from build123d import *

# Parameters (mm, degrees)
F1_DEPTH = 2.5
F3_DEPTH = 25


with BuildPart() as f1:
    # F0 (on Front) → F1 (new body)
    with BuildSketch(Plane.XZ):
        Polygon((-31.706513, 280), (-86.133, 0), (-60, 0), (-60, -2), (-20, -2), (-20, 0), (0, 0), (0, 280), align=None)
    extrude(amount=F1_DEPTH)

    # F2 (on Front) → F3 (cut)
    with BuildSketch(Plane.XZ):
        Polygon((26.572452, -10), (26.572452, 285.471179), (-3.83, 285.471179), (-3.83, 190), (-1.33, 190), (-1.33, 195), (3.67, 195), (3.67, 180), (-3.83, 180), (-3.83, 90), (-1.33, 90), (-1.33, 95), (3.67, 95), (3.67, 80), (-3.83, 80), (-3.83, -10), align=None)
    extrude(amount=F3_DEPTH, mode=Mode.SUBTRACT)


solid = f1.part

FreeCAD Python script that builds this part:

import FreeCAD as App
import Part
import Sketcher
Q = App.Units.Quantity


def add_polygon(sketch, points):
    """Adds a closed chain of lines whose ends are joined by coincident constraints."""
    first, n = sketch.GeometryCount, len(points)
    for a, b in zip(points, points[1:] + points[:1]):
        sketch.addGeometry(Part.LineSegment(App.Vector(*a, 0), App.Vector(*b, 0)), False)
    for i in range(n):
        sketch.addConstraint(Sketcher.Constraint("Coincident", first + i, 2, first + (i + 1) % n, 1))

doc = App.newDocument("Part")
body = doc.addObject("PartDesign::Body", "Body")

# Sketch on XZ plane
sketch1 = doc.addObject("Sketcher::SketchObject", "Sketch")
body.addObject(sketch1)
sketch1.AttachmentSupport = (doc.XZ_Plane, [""])
sketch1.MapMode = "FlatFace"
add_polygon(sketch1, [(-31.7, 280), (-86.1, 0), (-60, 0), (-60, -2), (-20, -2), (-20, 0), (0, 0), (0, 280)])  # lines 0-7
sketch1.addConstraint([
    Sketcher.Constraint("Horizontal", 1),
    Sketcher.Constraint("Vertical", 2),
    Sketcher.Constraint("Horizontal", 3),
    Sketcher.Constraint("Vertical", 4),
    Sketcher.Constraint("Horizontal", 5),
    Sketcher.Constraint("Vertical", 6),
    Sketcher.Constraint("Horizontal", 7),
    Sketcher.Constraint("Coincident", 5, 2, -1, 1),
    Sketcher.Constraint("PointOnObject", 0, 2, -1),
    Sketcher.Constraint("DistanceX", 3, 1, 3, 2, 40.0),
    Sketcher.Constraint("DistanceX", 5, 1, 5, 2, 20.0),
    Sketcher.Constraint("DistanceY", 2, 2, 2, 1, 2.0),
    Sketcher.Constraint("DistanceY", 6, 1, 6, 2, 280.0),
    Sketcher.Constraint("Angle", 0, Q("-101 deg")),
    Sketcher.Constraint("DistanceX", 1, 1, 1, 2, 26.133),
])
pad1 = doc.addObject("PartDesign::Pad", "Pad")
body.addObject(pad1)
pad1.Profile = sketch1
pad1.Length = 2.5

# Sketch on XZ plane
sketch2 = doc.addObject("Sketcher::SketchObject", "Sketch001")
body.addObject(sketch2)
sketch2.AttachmentSupport = (doc.XZ_Plane, [""])
sketch2.MapMode = "FlatFace"
add_polygon(sketch2, [(26.6, -10), (26.6, 285.5), (-3.8, 285.5), (-3.8, 190), (-1.3, 190), (-1.3, 195), (3.7, 195), (3.7, 180), (-3.8, 180), (-3.8, 90), (-1.3, 90), (-1.3, 95), (3.7, 95), (3.7, 80), (-3.8, 80), (-3.8, -10)])  # lines 0-15
sketch2.addConstraint([
    Sketcher.Constraint("Vertical", 0),
    Sketcher.Constraint("Horizontal", 1),
    Sketcher.Constraint("Vertical", 2),
    Sketcher.Constraint("Horizontal", 3),
    Sketcher.Constraint("Vertical", 4),
    Sketcher.Constraint("Horizontal", 5),
    Sketcher.Constraint("Vertical", 6),
    Sketcher.Constraint("Horizontal", 7),
    Sketcher.Constraint("Vertical", 8),
    Sketcher.Constraint("Horizontal", 9),
    Sketcher.Constraint("Vertical", 10),
    Sketcher.Constraint("Horizontal", 11),
    Sketcher.Constraint("Vertical", 12),
    Sketcher.Constraint("Horizontal", 13),
    Sketcher.Constraint("Vertical", 14),
    Sketcher.Constraint("Horizontal", 15),
    Sketcher.Constraint("Vertical", 2, 2, 7, 2),
    Sketcher.Constraint("Vertical", 4, 2, 9, 2),
    Sketcher.Constraint("Vertical", 6, 2, 11, 2),
    Sketcher.Constraint("Vertical", 8, 2, 13, 2),
    Sketcher.Constraint("Equal", 11, 4),
    Sketcher.Constraint("Equal", 4, 10),
    Sketcher.Constraint("Equal", 6, 12),
    Sketcher.Constraint("Equal", 8, 14),
    Sketcher.Constraint("DistanceX", 5, 1, 5, 2, 5.0),
    Sketcher.Constraint("DistanceY", 6, 2, 6, 1, 15.0),
    Sketcher.Constraint("DistanceY", 8, 2, 8, 1, 90.0),
    Sketcher.Constraint("DistanceX", 3, 1, 3, 2, 2.5),
    Sketcher.Constraint("DistanceY", -1, 1, 2, 2, 190.0),
    Sketcher.Constraint("DistanceX", 1, 2, -1, 1, 3.83),
    Sketcher.Constraint("DistanceX", 1, 2, 1, 1, 30.402452),
    Sketcher.Constraint("DistanceY", 0, 1, 0, 2, 295.471179),
])
pocket1 = doc.addObject("PartDesign::Pocket", "Pocket")
body.addObject(pocket1)
pocket1.Profile = sketch2
pocket1.Length = 25
pocket1.Reversed = True

doc.recompute()
